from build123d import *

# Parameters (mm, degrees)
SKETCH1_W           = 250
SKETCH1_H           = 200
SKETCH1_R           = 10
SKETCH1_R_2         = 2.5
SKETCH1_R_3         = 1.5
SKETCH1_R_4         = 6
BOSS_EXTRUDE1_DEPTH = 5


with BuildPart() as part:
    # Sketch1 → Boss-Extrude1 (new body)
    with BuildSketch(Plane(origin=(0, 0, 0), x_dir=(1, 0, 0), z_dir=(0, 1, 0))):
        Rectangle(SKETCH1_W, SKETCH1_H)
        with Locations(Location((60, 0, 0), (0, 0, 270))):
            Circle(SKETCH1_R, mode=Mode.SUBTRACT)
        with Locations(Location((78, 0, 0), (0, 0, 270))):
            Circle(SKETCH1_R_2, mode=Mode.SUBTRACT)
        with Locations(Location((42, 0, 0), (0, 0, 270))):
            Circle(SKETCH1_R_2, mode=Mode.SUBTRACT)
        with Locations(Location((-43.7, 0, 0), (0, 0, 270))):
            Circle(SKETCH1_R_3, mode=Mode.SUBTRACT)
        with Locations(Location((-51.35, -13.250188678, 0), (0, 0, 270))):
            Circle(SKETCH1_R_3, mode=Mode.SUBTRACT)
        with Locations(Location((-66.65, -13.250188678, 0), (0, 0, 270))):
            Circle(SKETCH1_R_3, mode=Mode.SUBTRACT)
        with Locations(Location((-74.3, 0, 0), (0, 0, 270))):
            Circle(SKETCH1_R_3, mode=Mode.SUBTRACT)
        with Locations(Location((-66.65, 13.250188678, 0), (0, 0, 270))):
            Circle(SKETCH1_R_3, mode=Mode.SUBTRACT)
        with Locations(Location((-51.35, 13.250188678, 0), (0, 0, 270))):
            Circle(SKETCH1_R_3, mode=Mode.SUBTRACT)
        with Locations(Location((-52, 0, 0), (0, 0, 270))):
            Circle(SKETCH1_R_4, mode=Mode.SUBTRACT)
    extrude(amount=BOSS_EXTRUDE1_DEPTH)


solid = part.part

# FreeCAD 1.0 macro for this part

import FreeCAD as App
import Part
import Sketcher
from FreeCAD import Vector
Q = App.Units.Quantity

doc = App.newDocument("Part")
body = doc.addObject("PartDesign::Body", "Body")

# Sketch on XZ plane
sketch1 = body.newObject("Sketcher::SketchObject", "Sketch")
sketch1.AttachmentSupport = (doc.getObject("XZ_Plane"), [""])
sketch1.MapMode = "FlatFace"
sketch1.addGeometry(Part.LineSegment(Vector(-125, -100, 0), Vector(-125, 100, 0)), False)
sketch1.addGeometry(Part.LineSegment(Vector(-125, 100, 0), Vector(125, 100, 0)), False)
sketch1.addGeometry(Part.LineSegment(Vector(125, 100, 0), Vector(125, -100, 0)), False)
sketch1.addGeometry(Part.LineSegment(Vector(125, -100, 0), Vector(-125, -100, 0)), False)
sketch1.addGeometry(Part.Circle(Vector(-66.7, 13.3, 0), Vector(0, 0, 1), 1.5), False)
sketch1.addGeometry(Part.Circle(Vector(-51.4, 13.3, 0), Vector(0, 0, 1), 1.5), False)
sketch1.addGeometry(Part.Circle(Vector(-74.3, 0, 0), Vector(0, 0, 1), 1.5), False)
sketch1.addGeometry(Part.Circle(Vector(-52, 0, 0), Vector(0, 0, 1), 6), False)
sketch1.addGeometry(Part.Circle(Vector(-43.7, 0, 0), Vector(0, 0, 1), 1.5), False)
sketch1.addGeometry(Part.Circle(Vector(-66.7, -13.3, 0), Vector(0, 0, 1), 1.5), False)
sketch1.addGeometry(Part.Circle(Vector(-51.4, -13.3, 0), Vector(0, 0, 1), 1.5), False)
sketch1.addGeometry(Part.Circle(Vector(42, 0, 0), Vector(0, 0, 1), 2.5), False)
sketch1.addGeometry(Part.Circle(Vector(60, 0, 0), Vector(0, 0, 1), 10), False)
sketch1.addGeometry(Part.Circle(Vector(78, 0, 0), Vector(0, 0, 1), 2.5), False)
sketch1.addConstraint(Sketcher.Constraint("Coincident", 0, 2, 1, 1))
sketch1.addConstraint(Sketcher.Constraint("Coincident", 1, 2, 2, 1))
sketch1.addConstraint(Sketcher.Constraint("Coincident", 2, 2, 3, 1))
sketch1.addConstraint(Sketcher.Constraint("Coincident", 3, 2, 0, 1))
sketch1.addConstraint(Sketcher.Constraint("Vertical", 0))
sketch1.addConstraint(Sketcher.Constraint("Horizontal", 1))
sketch1.addConstraint(Sketcher.Constraint("Vertical", 2))
sketch1.addConstraint(Sketcher.Constraint("Horizontal", 3))
sketch1.addConstraint(Sketcher.Constraint("Equal", 4, 5))
sketch1.addConstraint(Sketcher.Constraint("Equal", 5, 6))
sketch1.addConstraint(Sketcher.Constraint("Equal", 6, 8))
sketch1.addConstraint(Sketcher.Constraint("Equal", 8, 9))
sketch1.addConstraint(Sketcher.Constraint("Equal", 9, 10))
sketch1.addConstraint(Sketcher.Constraint("Equal", 11, 13))
sketch1.addConstraint(Sketcher.Constraint("Symmetric", 0, 2, 2, 2, -1, 1))
sketch1.addConstraint(Sketcher.Constraint("Symmetric", 4, 3, 9, 3, -1))
sketch1.addConstraint(Sketcher.Constraint("Symmetric", 5, 3, 10, 3, -1))
sketch1.addConstraint(Sketcher.Constraint("PointOnObject", 6, 3, -1))
sketch1.addConstraint(Sketcher.Constraint("PointOnObject", 7, 3, -1))
sketch1.addConstraint(Sketcher.Constraint("PointOnObject", 8, 3, -1))
sketch1.addConstraint(Sketcher.Constraint("PointOnObject", 11, 3, -1))
sketch1.addConstraint(Sketcher.Constraint("PointOnObject", 12, 3, -1))
sketch1.addConstraint(Sketcher.Constraint("PointOnObject", 13, 3, -1))
sketch1.addConstraint(Sketcher.Constraint("Horizontal", 4, 3, 5, 3))
sketch1.addConstraint(Sketcher.Constraint("Diameter", 4, Q("3 mm")))
sketch1.addConstraint(Sketcher.Constraint("Diameter", 7, Q("12 mm")))
sketch1.addConstraint(Sketcher.Constraint("Diameter", 11, Q("5 mm")))
sketch1.addConstraint(Sketcher.Constraint("Diameter", 12, Q("20 mm")))
sketch1.addConstraint(Sketcher.Constraint("DistanceX", 1, 1, 1, 2, Q("250 mm")))
sketch1.addConstraint(Sketcher.Constraint("DistanceY", 0, 1, 0, 2, Q("200 mm")))
sketch1.addConstraint(Sketcher.Constraint("DistanceX", 7, 3, -1, 1, Q("52 mm")))
sketch1.addConstraint(Sketcher.Constraint("DistanceX", -1, 1, 11, 3, Q("42 mm")))
sketch1.addConstraint(Sketcher.Constraint("DistanceX", -1, 1, 12, 3, Q("60 mm")))
sketch1.addConstraint(Sketcher.Constraint("DistanceX", -1, 1, 13, 3, Q("78 mm")))
sketch1.addConstraint(Sketcher.Constraint("DistanceX", 6, 3, -1, 1, Q("74.3 mm")))
sketch1.addConstraint(Sketcher.Constraint("DistanceX", 8, 3, -1, 1, Q("43.7 mm")))
sketch1.addConstraint(Sketcher.Constraint("DistanceX", 4, 3, 5, 3, Q("15.3 mm")))
sketch1.addConstraint(Sketcher.Constraint("DistanceX", 4, 3, -1, 1, Q("66.65 mm")))
sketch1.addConstraint(Sketcher.Constraint("DistanceY", -1, 1, 4, 3, Q("13.250189 mm")))
pad1 = body.newObject("PartDesign::Pad", "Pad")
pad1.Profile = sketch1
pad1.Length = 5
pad1.Reversed = True

doc.recompute()
